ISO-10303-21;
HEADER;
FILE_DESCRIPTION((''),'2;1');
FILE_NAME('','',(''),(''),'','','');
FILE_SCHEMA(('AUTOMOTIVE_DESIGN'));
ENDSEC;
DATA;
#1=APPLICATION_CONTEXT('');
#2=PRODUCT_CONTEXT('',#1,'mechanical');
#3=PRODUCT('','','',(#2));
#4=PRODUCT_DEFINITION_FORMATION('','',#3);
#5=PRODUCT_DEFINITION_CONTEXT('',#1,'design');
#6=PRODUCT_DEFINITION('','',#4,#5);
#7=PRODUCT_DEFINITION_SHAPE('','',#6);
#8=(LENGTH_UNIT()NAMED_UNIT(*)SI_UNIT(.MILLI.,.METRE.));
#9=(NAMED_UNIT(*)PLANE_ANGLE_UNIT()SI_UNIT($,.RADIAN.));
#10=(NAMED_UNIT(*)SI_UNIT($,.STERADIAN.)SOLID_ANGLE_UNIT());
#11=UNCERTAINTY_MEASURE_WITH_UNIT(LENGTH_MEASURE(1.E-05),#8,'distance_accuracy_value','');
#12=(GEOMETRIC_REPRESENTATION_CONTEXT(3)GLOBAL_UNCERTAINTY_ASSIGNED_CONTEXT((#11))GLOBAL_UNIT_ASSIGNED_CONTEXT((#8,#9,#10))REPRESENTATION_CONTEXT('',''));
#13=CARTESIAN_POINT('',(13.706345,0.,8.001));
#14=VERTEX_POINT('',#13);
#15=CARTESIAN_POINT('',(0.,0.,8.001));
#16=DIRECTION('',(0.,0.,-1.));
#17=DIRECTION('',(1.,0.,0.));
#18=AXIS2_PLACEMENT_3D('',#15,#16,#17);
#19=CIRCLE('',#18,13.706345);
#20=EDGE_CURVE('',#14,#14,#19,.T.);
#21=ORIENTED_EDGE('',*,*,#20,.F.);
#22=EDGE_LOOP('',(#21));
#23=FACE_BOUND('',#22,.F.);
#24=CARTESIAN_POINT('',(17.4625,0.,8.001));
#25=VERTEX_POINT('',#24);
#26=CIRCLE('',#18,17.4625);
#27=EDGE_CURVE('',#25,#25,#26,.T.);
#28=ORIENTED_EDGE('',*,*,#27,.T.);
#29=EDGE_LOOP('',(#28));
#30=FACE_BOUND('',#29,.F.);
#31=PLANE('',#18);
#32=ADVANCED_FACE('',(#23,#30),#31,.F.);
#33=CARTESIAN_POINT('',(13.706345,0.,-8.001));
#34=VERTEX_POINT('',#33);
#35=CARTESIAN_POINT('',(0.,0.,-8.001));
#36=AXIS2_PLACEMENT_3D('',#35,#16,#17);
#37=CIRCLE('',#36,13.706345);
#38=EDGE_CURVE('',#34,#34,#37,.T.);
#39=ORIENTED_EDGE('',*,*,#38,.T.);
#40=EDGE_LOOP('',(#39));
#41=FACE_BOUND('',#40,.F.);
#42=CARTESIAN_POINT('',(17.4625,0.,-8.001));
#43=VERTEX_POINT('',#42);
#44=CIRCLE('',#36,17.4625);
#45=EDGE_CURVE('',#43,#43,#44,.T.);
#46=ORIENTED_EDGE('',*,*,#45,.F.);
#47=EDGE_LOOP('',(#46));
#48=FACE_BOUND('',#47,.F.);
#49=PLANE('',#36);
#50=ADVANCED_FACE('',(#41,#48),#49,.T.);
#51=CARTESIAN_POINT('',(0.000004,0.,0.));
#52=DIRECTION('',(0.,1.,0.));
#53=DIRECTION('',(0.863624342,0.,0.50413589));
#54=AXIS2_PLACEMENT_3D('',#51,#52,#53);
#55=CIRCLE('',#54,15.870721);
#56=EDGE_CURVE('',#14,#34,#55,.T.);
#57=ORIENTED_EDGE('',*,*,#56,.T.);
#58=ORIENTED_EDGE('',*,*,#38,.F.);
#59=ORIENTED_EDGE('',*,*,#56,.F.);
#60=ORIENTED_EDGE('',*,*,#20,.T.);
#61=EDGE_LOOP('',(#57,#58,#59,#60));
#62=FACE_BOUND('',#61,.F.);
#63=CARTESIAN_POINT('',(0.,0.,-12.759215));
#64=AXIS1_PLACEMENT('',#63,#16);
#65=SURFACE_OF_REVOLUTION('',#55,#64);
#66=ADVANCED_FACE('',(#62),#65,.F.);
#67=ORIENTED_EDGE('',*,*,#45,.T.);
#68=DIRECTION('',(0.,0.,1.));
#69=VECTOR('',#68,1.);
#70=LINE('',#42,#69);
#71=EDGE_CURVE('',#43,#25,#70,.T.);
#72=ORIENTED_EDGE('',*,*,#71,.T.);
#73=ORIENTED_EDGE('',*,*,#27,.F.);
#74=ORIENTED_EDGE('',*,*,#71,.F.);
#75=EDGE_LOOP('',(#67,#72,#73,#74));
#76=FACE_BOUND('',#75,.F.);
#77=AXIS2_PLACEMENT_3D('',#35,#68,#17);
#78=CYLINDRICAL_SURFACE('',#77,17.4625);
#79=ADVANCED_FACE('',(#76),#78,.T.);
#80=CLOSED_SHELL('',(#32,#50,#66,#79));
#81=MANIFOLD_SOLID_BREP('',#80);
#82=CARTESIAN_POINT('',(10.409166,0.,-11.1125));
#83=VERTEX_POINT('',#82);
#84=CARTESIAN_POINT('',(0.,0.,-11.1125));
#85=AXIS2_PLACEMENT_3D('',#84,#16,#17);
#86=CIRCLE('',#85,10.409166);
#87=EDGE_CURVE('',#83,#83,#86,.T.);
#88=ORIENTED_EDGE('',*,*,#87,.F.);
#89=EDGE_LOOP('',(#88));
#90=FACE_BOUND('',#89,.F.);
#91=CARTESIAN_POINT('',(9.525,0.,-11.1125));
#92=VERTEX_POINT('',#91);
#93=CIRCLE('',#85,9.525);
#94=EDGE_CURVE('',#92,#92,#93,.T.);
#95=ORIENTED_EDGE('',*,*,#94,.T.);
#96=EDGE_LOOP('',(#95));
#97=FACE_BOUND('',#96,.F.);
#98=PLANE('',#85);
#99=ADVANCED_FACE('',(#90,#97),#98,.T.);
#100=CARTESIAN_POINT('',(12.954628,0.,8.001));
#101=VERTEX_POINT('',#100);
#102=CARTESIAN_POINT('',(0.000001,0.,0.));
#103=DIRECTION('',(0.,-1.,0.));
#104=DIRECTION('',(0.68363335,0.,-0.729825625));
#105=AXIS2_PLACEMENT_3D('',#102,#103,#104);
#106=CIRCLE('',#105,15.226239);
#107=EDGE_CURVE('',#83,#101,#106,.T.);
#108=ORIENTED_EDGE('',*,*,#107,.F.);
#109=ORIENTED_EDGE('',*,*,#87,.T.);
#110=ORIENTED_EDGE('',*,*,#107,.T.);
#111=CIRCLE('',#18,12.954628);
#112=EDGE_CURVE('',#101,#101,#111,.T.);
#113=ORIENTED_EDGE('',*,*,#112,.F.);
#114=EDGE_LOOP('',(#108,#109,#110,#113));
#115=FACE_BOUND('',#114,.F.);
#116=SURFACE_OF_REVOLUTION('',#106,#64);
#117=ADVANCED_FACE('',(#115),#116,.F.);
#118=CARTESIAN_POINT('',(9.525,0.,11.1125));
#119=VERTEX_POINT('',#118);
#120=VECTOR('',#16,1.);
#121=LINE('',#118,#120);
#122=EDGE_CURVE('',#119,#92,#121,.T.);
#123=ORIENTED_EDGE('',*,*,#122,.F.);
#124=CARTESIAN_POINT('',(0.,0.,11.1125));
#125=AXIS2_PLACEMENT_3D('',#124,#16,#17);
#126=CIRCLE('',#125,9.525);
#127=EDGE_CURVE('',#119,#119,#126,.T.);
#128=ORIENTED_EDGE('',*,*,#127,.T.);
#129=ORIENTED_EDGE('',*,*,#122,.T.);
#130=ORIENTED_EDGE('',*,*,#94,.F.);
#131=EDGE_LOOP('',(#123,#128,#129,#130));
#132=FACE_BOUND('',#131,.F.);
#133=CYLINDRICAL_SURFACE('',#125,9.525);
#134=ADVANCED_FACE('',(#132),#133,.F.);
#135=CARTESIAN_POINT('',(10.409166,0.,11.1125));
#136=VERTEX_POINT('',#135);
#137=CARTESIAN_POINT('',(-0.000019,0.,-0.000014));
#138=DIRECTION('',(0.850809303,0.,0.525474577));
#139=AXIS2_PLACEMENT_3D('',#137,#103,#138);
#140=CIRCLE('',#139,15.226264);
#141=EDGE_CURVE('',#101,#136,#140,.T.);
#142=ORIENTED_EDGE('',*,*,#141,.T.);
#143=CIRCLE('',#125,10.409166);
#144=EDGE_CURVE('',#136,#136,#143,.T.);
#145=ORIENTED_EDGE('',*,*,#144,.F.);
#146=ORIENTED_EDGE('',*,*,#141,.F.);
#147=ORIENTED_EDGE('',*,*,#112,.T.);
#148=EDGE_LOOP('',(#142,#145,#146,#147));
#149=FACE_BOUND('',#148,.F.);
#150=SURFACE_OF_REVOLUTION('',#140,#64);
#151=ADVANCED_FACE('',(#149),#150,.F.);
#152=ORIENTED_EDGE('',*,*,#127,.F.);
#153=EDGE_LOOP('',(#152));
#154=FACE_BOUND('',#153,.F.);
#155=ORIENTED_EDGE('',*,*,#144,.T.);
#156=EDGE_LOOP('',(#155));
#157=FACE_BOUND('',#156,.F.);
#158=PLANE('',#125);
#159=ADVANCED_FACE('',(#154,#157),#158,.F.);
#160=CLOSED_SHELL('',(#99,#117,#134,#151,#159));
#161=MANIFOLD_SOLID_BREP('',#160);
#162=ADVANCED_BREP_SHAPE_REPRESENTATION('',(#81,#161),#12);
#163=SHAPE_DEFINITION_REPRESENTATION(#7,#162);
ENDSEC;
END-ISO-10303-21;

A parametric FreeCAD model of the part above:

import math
import FreeCAD as App
import Part
import Sketcher

V = App.Vector
Q = App.Units.Quantity

doc = App.newDocument("Part")
body = doc.addObject("PartDesign::Body", "Body")
body.AllowCompound = True

# Sketch on XZ plane
sketch1 = doc.addObject("Sketcher::SketchObject", "Sketch")
body.addObject(sketch1)
sketch1.AttachmentSupport = (doc.XZ_Plane, [""])
sketch1.MapMode = "FlatFace"
sketch1.addGeometry(Part.LineSegment(V(10.409166, 11.1125, 0), V(9.525, 11.1125, 0)), False)
sketch1.addGeometry(Part.LineSegment(V(9.525, 11.1125, 0), V(9.525, -11.1125, 0)), False)
sketch1.addGeometry(Part.LineSegment(V(9.525, -11.1125, 0), V(10.409166, -11.1125, 0)), False)
sketch1.addGeometry(Part.ArcOfCircle(Part.Circle(V(0.000001, 0, 0), V(0, 0, 1), 15.226239), math.radians(-46.871778), math.radians(31.70019)), False)
sketch1.addGeometry(Part.ArcOfCircle(Part.Circle(V(-0.000019, -0.000014, 0), V(0, 0, 1), 15.226264), math.radians(31.700197), math.radians(46.871762)), False)
sketch1.addGeometry(Part.LineSegment(V(17.4625, -8.001, 0), V(17.4625, 8.001, 0)), False)
sketch1.addGeometry(Part.LineSegment(V(17.4625, 8.001, 0), V(13.706345, 8.001, 0)), False)
sketch1.addGeometry(Part.ArcOfCircle(Part.Circle(V(0.000004, 0, 0), V(0, 0, 1), 15.870721), math.radians(-30.274008), math.radians(30.274008)), False)
sketch1.addGeometry(Part.LineSegment(V(13.706345, -8.001, 0), V(17.4625, -8.001, 0)), False)
sketch1.addConstraint(Sketcher.Constraint("Coincident", 0, 2, 1, 1))
sketch1.addConstraint(Sketcher.Constraint("Coincident", 1, 2, 2, 1))
sketch1.addConstraint(Sketcher.Constraint("Coincident", 2, 2, 3, 1))
sketch1.addConstraint(Sketcher.Constraint("Coincident", 3, 2, 4, 1))
sketch1.addConstraint(Sketcher.Constraint("Coincident", 4, 2, 0, 1))
sketch1.addConstraint(Sketcher.Constraint("Coincident", 5, 2, 6, 1))
sketch1.addConstraint(Sketcher.Constraint("Coincident", 6, 2, 7, 2))
sketch1.addConstraint(Sketcher.Constraint("Coincident", 7, 1, 8, 1))
sketch1.addConstraint(Sketcher.Constraint("Coincident", 8, 2, 5, 1))
sketch1.addConstraint(Sketcher.Constraint("Horizontal", 0))
sketch1.addConstraint(Sketcher.Constraint("Vertical", 1))
sketch1.addConstraint(Sketcher.Constraint("Horizontal", 2))
sketch1.addConstraint(Sketcher.Constraint("Vertical", 5))
sketch1.addConstraint(Sketcher.Constraint("Horizontal", 6))
sketch1.addConstraint(Sketcher.Constraint("Horizontal", 8))
sketch1.addConstraint(Sketcher.Constraint("Coincident", 3, 3, -1, 1))
sketch1.addConstraint(Sketcher.Constraint("Coincident", 7, 3, -1, 1))
sketch1.addConstraint(Sketcher.Constraint("DistanceY", 5, 1, 5, 2, Q("0.63 in")))
sketch1.addConstraint(Sketcher.Constraint("DistanceY", 1, 2, 1, 1, Q("0.875 in")))
sketch1.addConstraint(Sketcher.Constraint("DistanceX", -1, 1, 0, 2, Q("0.375 in")))
sketch1.addConstraint(Sketcher.Constraint("DistanceY", -1, 1, 0, 2, Q("0.4375 in")))
sketch1.addConstraint(Sketcher.Constraint("DistanceY", -1, 1, 3, 2, Q("0.315 in")))
sketch1.addConstraint(Sketcher.Constraint("DistanceX", -1, 1, 5, 2, Q("0.6875 in")))
sketch1.addConstraint(Sketcher.Constraint("DistanceY", -1, 1, 5, 2, Q("0.315 in")))
sketch1.addConstraint(Sketcher.Constraint("Radius", 3, 15.226239))
sketch1.addConstraint(Sketcher.Constraint("Radius", 7, 15.870721))
sketch1.addConstraint(Sketcher.Constraint("Radius", 4, 15.226264))
sketch1.addConstraint(Sketcher.Constraint("DistanceX", 0, 2, 0, 1, 0.884166))
revolution = doc.addObject("PartDesign::Revolution", "Revolution")
body.addObject(revolution)
revolution.Profile = sketch1
revolution.ReferenceAxis = (sketch1, ["V_Axis"])
revolution.Angle = 360

doc.recompute()
